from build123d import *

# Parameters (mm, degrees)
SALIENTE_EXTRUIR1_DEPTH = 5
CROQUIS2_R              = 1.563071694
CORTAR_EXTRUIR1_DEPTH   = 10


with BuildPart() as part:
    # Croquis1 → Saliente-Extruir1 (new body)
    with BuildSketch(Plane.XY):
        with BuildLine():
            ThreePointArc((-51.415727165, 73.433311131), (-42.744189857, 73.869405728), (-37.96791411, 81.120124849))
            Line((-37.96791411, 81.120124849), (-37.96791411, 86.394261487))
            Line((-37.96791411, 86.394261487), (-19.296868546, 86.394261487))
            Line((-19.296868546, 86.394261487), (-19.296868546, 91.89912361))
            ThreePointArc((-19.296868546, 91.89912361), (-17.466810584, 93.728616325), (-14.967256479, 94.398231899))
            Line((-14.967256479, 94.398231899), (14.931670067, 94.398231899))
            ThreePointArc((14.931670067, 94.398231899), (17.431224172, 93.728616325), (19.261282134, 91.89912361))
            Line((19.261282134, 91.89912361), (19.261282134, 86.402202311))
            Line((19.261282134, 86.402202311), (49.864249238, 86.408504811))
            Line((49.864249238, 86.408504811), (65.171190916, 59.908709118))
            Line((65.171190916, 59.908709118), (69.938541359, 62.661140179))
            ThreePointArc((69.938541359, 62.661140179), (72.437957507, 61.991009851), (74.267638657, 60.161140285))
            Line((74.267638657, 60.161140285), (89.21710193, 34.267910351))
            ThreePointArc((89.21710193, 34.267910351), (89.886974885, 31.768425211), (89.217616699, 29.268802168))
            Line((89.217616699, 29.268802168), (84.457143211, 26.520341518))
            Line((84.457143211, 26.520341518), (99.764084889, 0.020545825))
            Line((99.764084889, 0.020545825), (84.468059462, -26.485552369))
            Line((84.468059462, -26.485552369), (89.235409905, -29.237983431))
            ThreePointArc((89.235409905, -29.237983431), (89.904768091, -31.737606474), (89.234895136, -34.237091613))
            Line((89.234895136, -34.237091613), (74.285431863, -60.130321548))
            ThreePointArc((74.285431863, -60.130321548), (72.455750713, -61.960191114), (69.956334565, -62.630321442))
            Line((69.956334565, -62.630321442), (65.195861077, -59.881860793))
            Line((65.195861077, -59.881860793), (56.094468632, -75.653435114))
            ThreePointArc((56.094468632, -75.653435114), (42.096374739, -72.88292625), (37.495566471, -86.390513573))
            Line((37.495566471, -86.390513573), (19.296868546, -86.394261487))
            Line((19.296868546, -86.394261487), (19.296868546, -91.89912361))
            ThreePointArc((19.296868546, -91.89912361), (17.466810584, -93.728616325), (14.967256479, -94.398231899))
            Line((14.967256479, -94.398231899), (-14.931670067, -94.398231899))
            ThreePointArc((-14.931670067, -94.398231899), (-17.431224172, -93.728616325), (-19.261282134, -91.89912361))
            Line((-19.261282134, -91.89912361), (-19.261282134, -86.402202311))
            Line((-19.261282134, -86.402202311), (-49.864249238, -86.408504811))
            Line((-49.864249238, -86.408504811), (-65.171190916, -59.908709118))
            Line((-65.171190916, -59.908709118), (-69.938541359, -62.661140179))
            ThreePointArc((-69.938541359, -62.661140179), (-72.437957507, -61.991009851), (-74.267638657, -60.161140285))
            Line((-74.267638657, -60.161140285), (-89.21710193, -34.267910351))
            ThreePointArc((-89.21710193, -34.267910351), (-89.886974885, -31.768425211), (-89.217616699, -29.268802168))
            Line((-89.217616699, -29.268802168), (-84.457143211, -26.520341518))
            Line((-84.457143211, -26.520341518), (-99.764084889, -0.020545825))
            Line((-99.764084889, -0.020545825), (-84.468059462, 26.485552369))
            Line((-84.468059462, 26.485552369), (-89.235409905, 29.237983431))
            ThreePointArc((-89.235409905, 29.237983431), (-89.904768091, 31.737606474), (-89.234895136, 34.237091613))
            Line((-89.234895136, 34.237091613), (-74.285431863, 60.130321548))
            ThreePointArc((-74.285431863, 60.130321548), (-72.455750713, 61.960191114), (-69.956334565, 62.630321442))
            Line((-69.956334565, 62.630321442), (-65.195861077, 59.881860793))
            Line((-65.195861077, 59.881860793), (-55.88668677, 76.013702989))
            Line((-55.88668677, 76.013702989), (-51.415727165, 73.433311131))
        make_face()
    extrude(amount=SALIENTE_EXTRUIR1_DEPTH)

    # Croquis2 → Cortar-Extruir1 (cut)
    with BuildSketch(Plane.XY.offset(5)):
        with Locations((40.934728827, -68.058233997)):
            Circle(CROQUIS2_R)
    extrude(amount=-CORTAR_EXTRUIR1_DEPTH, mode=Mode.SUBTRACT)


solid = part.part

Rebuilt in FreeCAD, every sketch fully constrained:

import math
import FreeCAD as App
import Part
import Sketcher
Q = App.Units.Quantity

doc = App.newDocument("Part")
body = doc.addObject("PartDesign::Body", "Body")

# Sketch on XY plane
sketch1 = doc.addObject("Sketcher::SketchObject", "Sketch")
body.addObject(sketch1)
sketch1.AttachmentSupport = (doc.XY_Plane, [""])
sketch1.MapMode = "FlatFace"
sketch1.addGeometry([
    Part.ArcOfCircle(Part.Circle(App.Vector(-47.5, 82.2, 0), App.Vector(0, 0, 1), 9.6), math.radians(-114), math.radians(-7)),  # 0
    Part.LineSegment(App.Vector(-51.4, 73.4, 0), App.Vector(-55.9, 76, 0)),  # 1
    Part.LineSegment(App.Vector(-55.9, 76, 0), App.Vector(-65.2, 59.9, 0)),  # 2
    Part.LineSegment(App.Vector(-65.2, 59.9, 0), App.Vector(-70, 62.6, 0)),  # 3
    Part.ArcOfCircle(Part.Circle(App.Vector(-70, 57.6, 0), App.Vector(0, 0, 1), 5), math.radians(90), math.radians(150)),  # 4
    Part.LineSegment(App.Vector(-74.3, 60.1, 0), App.Vector(-89.2, 34.2, 0)),  # 5
    Part.ArcOfCircle(Part.Circle(App.Vector(-84.9, 31.7, 0), App.Vector(0, 0, 1), 5), math.radians(150), math.radians(210)),  # 6
    Part.LineSegment(App.Vector(-89.2, 29.2, 0), App.Vector(-84.5, 26.5, 0)),  # 7
    Part.LineSegment(App.Vector(-84.5, 26.5, 0), App.Vector(-99.8, 0, 0)),  # 8
    Part.LineSegment(App.Vector(-99.8, 0, 0), App.Vector(-84.5, -26.5, 0)),  # 9
    Part.LineSegment(App.Vector(-84.5, -26.5, 0), App.Vector(-89.2, -29.3, 0)),  # 10
    Part.ArcOfCircle(Part.Circle(App.Vector(-84.9, -31.8, 0), App.Vector(0, 0, 1), 5), math.radians(150), math.radians(210)),  # 11
    Part.LineSegment(App.Vector(-89.2, -34.3, 0), App.Vector(-74.3, -60.2, 0)),  # 12
    Part.ArcOfCircle(Part.Circle(App.Vector(-69.9, -57.7, 0), App.Vector(0, 0, 1), 5), math.radians(-150), math.radians(-90)),  # 13
    Part.LineSegment(App.Vector(-69.9, -62.7, 0), App.Vector(-65.2, -59.9, 0)),  # 14
    Part.LineSegment(App.Vector(-65.2, -59.9, 0), App.Vector(-49.9, -86.4, 0)),  # 15
    Part.LineSegment(App.Vector(-49.9, -86.4, 0), App.Vector(-19.3, -86.4, 0)),  # 16
    Part.LineSegment(App.Vector(-19.3, -86.4, 0), App.Vector(-19.3, -91.9, 0)),  # 17
    Part.ArcOfCircle(Part.Circle(App.Vector(-14.9, -89.4, 0), App.Vector(0, 0, 1), 5), math.radians(-150), math.radians(-90)),  # 18
    Part.LineSegment(App.Vector(-14.9, -94.4, 0), App.Vector(15, -94.4, 0)),  # 19
    Part.ArcOfCircle(Part.Circle(App.Vector(15, -89.4, 0), App.Vector(0, 0, 1), 5), math.radians(-90), math.radians(-30)),  # 20
    Part.LineSegment(App.Vector(19.3, -91.9, 0), App.Vector(19.3, -86.4, 0)),  # 21
    Part.LineSegment(App.Vector(19.3, -86.4, 0), App.Vector(37.5, -86.4, 0)),  # 22
    Part.ArcOfCircle(Part.Circle(App.Vector(47.5, -82.3, 0), App.Vector(0, 0, 1), 10.8), math.radians(38), math.radians(202)),  # 23
    Part.LineSegment(App.Vector(56.1, -75.7, 0), App.Vector(65.2, -59.9, 0)),  # 24
    Part.LineSegment(App.Vector(65.2, -59.9, 0), App.Vector(70, -62.6, 0)),  # 25
    Part.ArcOfCircle(Part.Circle(App.Vector(70, -57.6, 0), App.Vector(0, 0, 1), 5), math.radians(-90), math.radians(-30)),  # 26
    Part.LineSegment(App.Vector(74.3, -60.1, 0), App.Vector(89.2, -34.2, 0)),  # 27
    Part.ArcOfCircle(Part.Circle(App.Vector(84.9, -31.7, 0), App.Vector(0, 0, 1), 5), math.radians(-30), math.radians(30)),  # 28
    Part.LineSegment(App.Vector(89.2, -29.2, 0), App.Vector(84.5, -26.5, 0)),  # 29
    Part.LineSegment(App.Vector(84.5, -26.5, 0), App.Vector(99.8, 0, 0)),  # 30
    Part.LineSegment(App.Vector(99.8, 0, 0), App.Vector(84.5, 26.5, 0)),  # 31
    Part.LineSegment(App.Vector(84.5, 26.5, 0), App.Vector(89.2, 29.3, 0)),  # 32
    Part.ArcOfCircle(Part.Circle(App.Vector(84.9, 31.8, 0), App.Vector(0, 0, 1), 5), math.radians(-30), math.radians(30)),  # 33
    Part.LineSegment(App.Vector(89.2, 34.3, 0), App.Vector(74.3, 60.2, 0)),  # 34
    Part.ArcOfCircle(Part.Circle(App.Vector(69.9, 57.7, 0), App.Vector(0, 0, 1), 5), math.radians(30), math.radians(90)),  # 35
    Part.LineSegment(App.Vector(69.9, 62.7, 0), App.Vector(65.2, 59.9, 0)),  # 36
    Part.LineSegment(App.Vector(65.2, 59.9, 0), App.Vector(49.9, 86.4, 0)),  # 37
    Part.LineSegment(App.Vector(49.9, 86.4, 0), App.Vector(19.3, 86.4, 0)),  # 38
    Part.LineSegment(App.Vector(19.3, 86.4, 0), App.Vector(19.3, 91.9, 0)),  # 39
    Part.ArcOfCircle(Part.Circle(App.Vector(14.9, 89.4, 0), App.Vector(0, 0, 1), 5), math.radians(30), math.radians(90)),  # 40
    Part.LineSegment(App.Vector(14.9, 94.4, 0), App.Vector(-15, 94.4, 0)),  # 41
    Part.ArcOfCircle(Part.Circle(App.Vector(-15, 89.4, 0), App.Vector(0, 0, 1), 5), math.radians(90), math.radians(150)),  # 42
    Part.LineSegment(App.Vector(-19.3, 91.9, 0), App.Vector(-19.3, 86.4, 0)),  # 43
    Part.LineSegment(App.Vector(-19.3, 86.4, 0), App.Vector(-38, 86.4, 0)),  # 44
    Part.LineSegment(App.Vector(-38, 86.4, 0), App.Vector(-38, 81.1, 0)),  # 45
], False)
sketch1.addConstraint([
    Sketcher.Constraint("Coincident", 0, 1, 1, 1),
    Sketcher.Constraint("Coincident", 1, 2, 2, 1),
    Sketcher.Constraint("Coincident", 2, 2, 3, 1),
    Sketcher.Constraint("Coincident", 3, 2, 4, 1),
    Sketcher.Constraint("Tangent", 4, 2, 5, 1),
    Sketcher.Constraint("Tangent", 5, 2, 6, 1),
    Sketcher.Constraint("Coincident", 6, 2, 7, 1),
    Sketcher.Constraint("Coincident", 7, 2, 8, 1),
    Sketcher.Constraint("Coincident", 8, 2, 9, 1),
    Sketcher.Constraint("Coincident", 9, 2, 10, 1),
    Sketcher.Constraint("Coincident", 10, 2, 11, 1),
    Sketcher.Constraint("Tangent", 11, 2, 12, 1),
    Sketcher.Constraint("Tangent", 12, 2, 13, 1),
    Sketcher.Constraint("Coincident", 13, 2, 14, 1),
    Sketcher.Constraint("Coincident", 14, 2, 15, 1),
    Sketcher.Constraint("Coincident", 15, 2, 16, 1),
    Sketcher.Constraint("Coincident", 16, 2, 17, 1),
    Sketcher.Constraint("Coincident", 17, 2, 18, 1),
    Sketcher.Constraint("Tangent", 18, 2, 19, 1),
    Sketcher.Constraint("Tangent", 19, 2, 20, 1),
    Sketcher.Constraint("Coincident", 20, 2, 21, 1),
    Sketcher.Constraint("Coincident", 21, 2, 22, 1),
    Sketcher.Constraint("Coincident", 22, 2, 23, 2),
    Sketcher.Constraint("Coincident", 23, 1, 24, 1),
    Sketcher.Constraint("Coincident", 24, 2, 25, 1),
    Sketcher.Constraint("Coincident", 25, 2, 26, 1),
    Sketcher.Constraint("Tangent", 26, 2, 27, 1),
    Sketcher.Constraint("Tangent", 27, 2, 28, 1),
    Sketcher.Constraint("Coincident", 28, 2, 29, 1),
    Sketcher.Constraint("Coincident", 29, 2, 30, 1),
    Sketcher.Constraint("Coincident", 30, 2, 31, 1),
    Sketcher.Constraint("Coincident", 31, 2, 32, 1),
    Sketcher.Constraint("Coincident", 32, 2, 33, 1),
    Sketcher.Constraint("Tangent", 33, 2, 34, 1),
    Sketcher.Constraint("Tangent", 34, 2, 35, 1),
    Sketcher.Constraint("Coincident", 35, 2, 36, 1),
    Sketcher.Constraint("Coincident", 36, 2, 37, 1),
    Sketcher.Constraint("Coincident", 37, 2, 38, 1),
    Sketcher.Constraint("Coincident", 38, 2, 39, 1),
    Sketcher.Constraint("Coincident", 39, 2, 40, 1),
    Sketcher.Constraint("Tangent", 40, 2, 41, 1),
    Sketcher.Constraint("Tangent", 41, 2, 42, 1),
    Sketcher.Constraint("Coincident", 42, 2, 43, 1),
    Sketcher.Constraint("Coincident", 43, 2, 44, 1),
    Sketcher.Constraint("Coincident", 44, 2, 45, 1),
    Sketcher.Constraint("Coincident", 45, 2, 0, 2),
    Sketcher.Constraint("Vertical", 17),
    Sketcher.Constraint("Horizontal", 19),
    Sketcher.Constraint("Vertical", 21),
    Sketcher.Constraint("Vertical", 39),
    Sketcher.Constraint("Horizontal", 41),
    Sketcher.Constraint("Vertical", 43),
    Sketcher.Constraint("Horizontal", 44),
    Sketcher.Constraint("Vertical", 45),
    Sketcher.Constraint("Equal", 4, 6),
    Sketcher.Constraint("Equal", 6, 11),
    Sketcher.Constraint("Equal", 11, 13),
    Sketcher.Constraint("Equal", 13, 18),
    Sketcher.Constraint("Equal", 18, 20),
    Sketcher.Constraint("Equal", 20, 26),
    Sketcher.Constraint("Equal", 26, 28),
    Sketcher.Constraint("Equal", 28, 33),
    Sketcher.Constraint("Equal", 33, 35),
    Sketcher.Constraint("Equal", 35, 40),
    Sketcher.Constraint("Equal", 40, 42),
    Sketcher.Constraint("Symmetric", 4, 3, 26, 3, -1, 1),
    Sketcher.Constraint("Symmetric", 6, 3, 28, 3, -1, 1),
    Sketcher.Constraint("Symmetric", 11, 3, 33, 3, -1, 1),
    Sketcher.Constraint("Symmetric", 13, 3, 35, 3, -1, 1),
    Sketcher.Constraint("Symmetric", 18, 3, 40, 3, -1, 1),
    Sketcher.Constraint("Symmetric", 2, 2, 24, 2, -1, 1),
    Sketcher.Constraint("Symmetric", 7, 2, 29, 2, -1, 1),
    Sketcher.Constraint("Symmetric", 8, 2, 30, 2, -1, 1),
    Sketcher.Constraint("Symmetric", 9, 2, 31, 2, -1, 1),
    Sketcher.Constraint("Symmetric", 14, 2, 36, 2, -1, 1),
    Sketcher.Constraint("Symmetric", 15, 2, 37, 2, -1, 1),
    Sketcher.Constraint("Symmetric", 16, 2, 38, 2, -1, 1),
    Sketcher.Constraint("Symmetric", 20, 2, 42, 2, -1, 1),
    Sketcher.Constraint("Perpendicular", 3, 5),
    Sketcher.Constraint("Perpendicular", 5, 7),
    Sketcher.Constraint("Perpendicular", 10, 12),
    Sketcher.Constraint("Perpendicular", 12, 14),
    Sketcher.Constraint("Parallel", 9, 15),
    Sketcher.Constraint("Parallel", 16, 22),
    Sketcher.Constraint("Parallel", 8, 24),
    Sketcher.Constraint("Parallel", 7, 25),
    Sketcher.Constraint("Perpendicular", 27, 29),
    Sketcher.Constraint("Parallel", 14, 32),
    Sketcher.Constraint("Perpendicular", 34, 36),
    Sketcher.Constraint("Horizontal", 17, 2, 20, 2),
    Sketcher.Constraint("Equal", 21, 43),
    Sketcher.Constraint("Equal", 8, 9),
    Sketcher.Constraint("Equal", 3, 10),
    Sketcher.Constraint("Equal", 5, 12),
    Sketcher.Constraint("Equal", 7, 14),
    Sketcher.Constraint("Equal", 9, 15),
    Sketcher.Constraint("Equal", 15, 16),
    Sketcher.Constraint("Radius", 4, 5.0),
    Sketcher.Constraint("Angle", 3, Q("150 deg")),
    Sketcher.Constraint("Angle", 10, Q("-150 deg")),
    Sketcher.Constraint("Radius", 0, 9.604084),
    Sketcher.Constraint("Radius", 23, 10.833346),
    Sketcher.Constraint("DistanceY", 11, 3, 6, 3, 63.505002),
    Sketcher.Constraint("Distance", 22, 18.198698),
    Sketcher.Constraint("DistanceY", 17, 2, 17, 1, 5.496921),
    Sketcher.Constraint("DistanceY", 23, 3, -1, 1, 82.265098),
    Sketcher.Constraint("DistanceX", 11, 2, -1, 1, 89.217102),
    Sketcher.Constraint("DistanceY", 13, 3, 0, 3, 139.868598),
    Sketcher.Constraint("DistanceX", 6, 3, 18, 3, 69.973098),
    Sketcher.Constraint("DistanceX", 23, 3, 28, 3, 37.3921),
    Sketcher.Constraint("DistanceY", 8, 2, 7, 2, 26.506098),
    Sketcher.Constraint("DistanceY", 13, 3, 9, 2, 31.140799),
    Sketcher.Constraint("DistanceY", 14, 2, 11, 3, 28.140799),
    Sketcher.Constraint("DistanceX", 20, 2, 23, 3, 28.2158),
    Sketcher.Constraint("DistanceX", 23, 3, 23, 1, 8.5818),
    Sketcher.Constraint("Distance", 1, 5.162161),
    Sketcher.Constraint("Distance", 3, 5.496921),
    Sketcher.Constraint("Distance", 24, 18.209281),
    Sketcher.Constraint("DistanceX", 19, 1, 19, 2, 29.898927),
    Sketcher.Constraint("DistanceX", 44, 2, 44, 1, 18.671046),
    Sketcher.Constraint("DistanceY", 21, 1, 21, 2, 5.504862),
    Sketcher.Constraint("DistanceY", 45, 2, 45, 1, 5.274137),
    Sketcher.Constraint("DistanceY", -1, 1, 0, 3, 82.207458),
    Sketcher.Constraint("DistanceY", -1, 1, 4, 3, 57.630322),
    Sketcher.Constraint("DistanceX", 6, 3, -1, 1, 84.904768),
    Sketcher.Constraint("DistanceY", -1, 1, 0, 1, 73.433311),
    Sketcher.Constraint("DistanceX", 1, 2, 0, 1, 4.47096),
])
pad1 = doc.addObject("PartDesign::Pad", "Pad")
body.addObject(pad1)
pad1.Profile = sketch1
pad1.Length = 5

# Sketch on XY plane
sketch2 = doc.addObject("Sketcher::SketchObject", "Sketch001")
body.addObject(sketch2)
sketch2.AttachmentSupport = (doc.XY_Plane, [""])
sketch2.MapMode = "FlatFace"
sketch2.AttachmentOffset = App.Placement(App.Vector(0, 0, 5), App.Rotation())
sketch2.addGeometry(Part.Circle(App.Vector(40.9, -68.1, 0), App.Vector(0, 0, 1), 1.6), False)
sketch2.addConstraint([
    Sketcher.Constraint("Diameter", 0, 3.126143),
    Sketcher.Constraint("DistanceX", -1, 1, 0, 3, 40.934729),
    Sketcher.Constraint("DistanceY", 0, 3, -1, 1, 68.058234),
])
pocket1 = doc.addObject("PartDesign::Pocket", "Pocket")
body.addObject(pocket1)
pocket1.Profile = sketch2
pocket1.Length = 10

doc.recompute()
